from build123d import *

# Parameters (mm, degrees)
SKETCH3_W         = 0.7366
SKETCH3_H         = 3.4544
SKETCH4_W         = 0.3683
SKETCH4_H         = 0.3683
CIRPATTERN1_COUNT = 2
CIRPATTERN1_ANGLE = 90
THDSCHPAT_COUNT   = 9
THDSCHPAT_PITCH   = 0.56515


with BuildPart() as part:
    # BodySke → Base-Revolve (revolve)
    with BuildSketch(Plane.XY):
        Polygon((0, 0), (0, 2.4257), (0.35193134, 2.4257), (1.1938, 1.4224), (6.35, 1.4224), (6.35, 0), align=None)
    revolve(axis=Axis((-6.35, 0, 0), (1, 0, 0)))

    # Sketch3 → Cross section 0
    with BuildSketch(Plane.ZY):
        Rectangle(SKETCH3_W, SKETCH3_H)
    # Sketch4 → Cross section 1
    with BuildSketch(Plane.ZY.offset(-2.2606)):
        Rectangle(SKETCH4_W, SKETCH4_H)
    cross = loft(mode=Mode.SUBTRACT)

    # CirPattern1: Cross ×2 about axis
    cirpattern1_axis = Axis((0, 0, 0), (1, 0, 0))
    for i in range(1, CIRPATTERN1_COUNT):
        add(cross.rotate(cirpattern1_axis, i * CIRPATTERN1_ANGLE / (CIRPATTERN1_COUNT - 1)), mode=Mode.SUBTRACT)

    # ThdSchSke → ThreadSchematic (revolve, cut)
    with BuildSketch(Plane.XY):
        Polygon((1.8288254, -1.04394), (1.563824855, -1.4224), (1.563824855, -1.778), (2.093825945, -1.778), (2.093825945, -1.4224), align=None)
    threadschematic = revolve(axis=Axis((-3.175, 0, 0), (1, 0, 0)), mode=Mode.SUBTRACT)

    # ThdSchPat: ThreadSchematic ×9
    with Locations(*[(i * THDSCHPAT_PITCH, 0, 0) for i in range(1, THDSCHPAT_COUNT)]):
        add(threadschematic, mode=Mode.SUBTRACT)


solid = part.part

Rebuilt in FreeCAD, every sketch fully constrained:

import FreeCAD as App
import Part
import Sketcher
Q = App.Units.Quantity

doc = App.newDocument("Part")
body = doc.addObject("PartDesign::Body", "Body")

# Sketch on XY plane
sketch1 = body.newObject("Sketcher::SketchObject", "Sketch")
sketch1.AttachmentSupport = (doc.getObject("XY_Plane"), [""])
sketch1.MapMode = "FlatFace"
sketch1.addGeometry(Part.LineSegment(App.Vector(0, 2.4257, 0), App.Vector(0, 0, 0)), False)
sketch1.addGeometry(Part.LineSegment(App.Vector(0, 0, 0), App.Vector(6.35, 0, 0)), False)
sketch1.addGeometry(Part.LineSegment(App.Vector(6.35, 0, 0), App.Vector(6.35, 1.4224, 0)), False)
sketch1.addGeometry(Part.LineSegment(App.Vector(6.35, 1.4224, 0), App.Vector(1.1938, 1.4224, 0)), False)
sketch1.addGeometry(Part.LineSegment(App.Vector(1.1938, 1.4224, 0), App.Vector(0.351931, 2.4257, 0)), False)
sketch1.addGeometry(Part.LineSegment(App.Vector(0.351931, 2.4257, 0), App.Vector(0, 2.4257, 0)), False)
sketch1.addConstraint(Sketcher.Constraint("Coincident", 0, 2, 1, 1))
sketch1.addConstraint(Sketcher.Constraint("Coincident", 1, 2, 2, 1))
sketch1.addConstraint(Sketcher.Constraint("Coincident", 2, 2, 3, 1))
sketch1.addConstraint(Sketcher.Constraint("Coincident", 3, 2, 4, 1))
sketch1.addConstraint(Sketcher.Constraint("Coincident", 4, 2, 5, 1))
sketch1.addConstraint(Sketcher.Constraint("Coincident", 5, 2, 0, 1))
sketch1.addConstraint(Sketcher.Constraint("Vertical", 0))
sketch1.addConstraint(Sketcher.Constraint("Horizontal", 1))
sketch1.addConstraint(Sketcher.Constraint("Vertical", 2))
sketch1.addConstraint(Sketcher.Constraint("Horizontal", 3))
sketch1.addConstraint(Sketcher.Constraint("Horizontal", 5))
sketch1.addConstraint(Sketcher.Constraint("Coincident", 0, 2, -1, 1))
sketch1.addConstraint(Sketcher.Constraint("Angle", 4, Q("130 deg")))
sketch1.addConstraint(Sketcher.Constraint("DistanceX", 1, 1, 1, 2, Q("0.25 in")))
sketch1.addConstraint(Sketcher.Constraint("DistanceX", 3, 2, 3, 1, Q("0.203 in")))
sketch1.addConstraint(Sketcher.Constraint("DistanceY", 2, 1, 2, 2, Q("0.056 in")))
sketch1.addConstraint(Sketcher.Constraint("DistanceY", 0, 2, 0, 1, Q("0.0955 in")))
revolution = body.newObject("PartDesign::Revolution", "Revolution")
revolution.Profile = sketch1
revolution.ReferenceAxis = (sketch1, ["H_Axis"])
revolution.Angle = 360

# Sketch on YZ plane
sketch2 = body.newObject("Sketcher::SketchObject", "Sketch001")
sketch2.AttachmentSupport = (doc.getObject("YZ_Plane"), [""])
sketch2.MapMode = "FlatFace"
sketch2.addGeometry(Part.LineSegment(App.Vector(1.7272, -0.3683, 0), App.Vector(-1.7272, -0.3683, 0)), False)
sketch2.addGeometry(Part.LineSegment(App.Vector(-1.7272, -0.3683, 0), App.Vector(-1.7272, 0.3683, 0)), False)
sketch2.addGeometry(Part.LineSegment(App.Vector(-1.7272, 0.3683, 0), App.Vector(1.7272, 0.3683, 0)), False)
sketch2.addGeometry(Part.LineSegment(App.Vector(1.7272, 0.3683, 0), App.Vector(1.7272, -0.3683, 0)), False)
sketch2.addConstraint(Sketcher.Constraint("Coincident", 0, 2, 1, 1))
sketch2.addConstraint(Sketcher.Constraint("Coincident", 1, 2, 2, 1))
sketch2.addConstraint(Sketcher.Constraint("Coincident", 2, 2, 3, 1))
sketch2.addConstraint(Sketcher.Constraint("Coincident", 3, 2, 0, 1))
sketch2.addConstraint(Sketcher.Constraint("Horizontal", 0))
sketch2.addConstraint(Sketcher.Constraint("Vertical", 1))
sketch2.addConstraint(Sketcher.Constraint("Horizontal", 2))
sketch2.addConstraint(Sketcher.Constraint("Vertical", 3))
sketch2.addConstraint(Sketcher.Constraint("Symmetric", 0, 2, 2, 2, -1, 1))
sketch2.addConstraint(Sketcher.Constraint("DistanceX", 0, 2, 0, 1, Q("0.136 in")))
sketch2.addConstraint(Sketcher.Constraint("DistanceY", 1, 1, 1, 2, Q("0.029 in")))

# Sketch on YZ plane
sketch3 = body.newObject("Sketcher::SketchObject", "Sketch002")
sketch3.AttachmentSupport = (doc.getObject("YZ_Plane"), [""])
sketch3.MapMode = "FlatFace"
sketch3.AttachmentOffset = App.Placement(App.Vector(0, 0, 0.089 * 25.4), App.Rotation())
sketch3.addGeometry(Part.LineSegment(App.Vector(0.18415, -0.18415, 0), App.Vector(-0.18415, -0.18415, 0)), False)
sketch3.addGeometry(Part.LineSegment(App.Vector(-0.18415, -0.18415, 0), App.Vector(-0.18415, 0.18415, 0)), False)
sketch3.addGeometry(Part.LineSegment(App.Vector(-0.18415, 0.18415, 0), App.Vector(0.18415, 0.18415, 0)), False)
sketch3.addGeometry(Part.LineSegment(App.Vector(0.18415, 0.18415, 0), App.Vector(0.18415, -0.18415, 0)), False)
sketch3.addConstraint(Sketcher.Constraint("Coincident", 0, 2, 1, 1))
sketch3.addConstraint(Sketcher.Constraint("Coincident", 1, 2, 2, 1))
sketch3.addConstraint(Sketcher.Constraint("Coincident", 2, 2, 3, 1))
sketch3.addConstraint(Sketcher.Constraint("Coincident", 3, 2, 0, 1))
sketch3.addConstraint(Sketcher.Constraint("Horizontal", 0))
sketch3.addConstraint(Sketcher.Constraint("Vertical", 1))
sketch3.addConstraint(Sketcher.Constraint("Horizontal", 2))
sketch3.addConstraint(Sketcher.Constraint("Vertical", 3))
sketch3.addConstraint(Sketcher.Constraint("Symmetric", 0, 2, 2, 2, -1, 1))
sketch3.addConstraint(Sketcher.Constraint("Equal", 2, 1))
sketch3.addConstraint(Sketcher.Constraint("DistanceX", 0, 2, 0, 1, Q("0.0145 in")))

subtractiveloft = body.newObject("PartDesign::SubtractiveLoft", "SubtractiveLoft")
subtractiveloft.Profile = sketch2
subtractiveloft.Sections = [sketch3]
doc.recompute()

polarpattern = body.newObject("PartDesign::PolarPattern", "PolarPattern")
polarpattern.Originals = [subtractiveloft]
polarpattern.Axis = (doc.getObject("X_Axis"), [""])
polarpattern.Angle = 90
polarpattern.Occurrences = 2
body.Tip = polarpattern

# Sketch on XY plane
sketch4 = body.newObject("Sketcher::SketchObject", "Sketch003")
sketch4.AttachmentSupport = (doc.getObject("XY_Plane"), [""])
sketch4.MapMode = "FlatFace"
sketch4.addGeometry(Part.LineSegment(App.Vector(1.828825, -1.04394, 0), App.Vector(1.563825, -1.4224, 0)), False)
sketch4.addGeometry(Part.LineSegment(App.Vector(1.563825, -1.4224, 0), App.Vector(1.563825, -1.778, 0)), False)
sketch4.addGeometry(Part.LineSegment(App.Vector(1.563825, -1.778, 0), App.Vector(2.093826, -1.778, 0)), False)
sketch4.addGeometry(Part.LineSegment(App.Vector(2.093826, -1.778, 0), App.Vector(2.093826, -1.4224, 0)), False)
sketch4.addGeometry(Part.LineSegment(App.Vector(2.093826, -1.4224, 0), App.Vector(1.828825, -1.04394, 0)), False)
sketch4.addConstraint(Sketcher.Constraint("Coincident", 0, 2, 1, 1))
sketch4.addConstraint(Sketcher.Constraint("Coincident", 1, 2, 2, 1))
sketch4.addConstraint(Sketcher.Constraint("Coincident", 2, 2, 3, 1))
sketch4.addConstraint(Sketcher.Constraint("Coincident", 3, 2, 4, 1))
sketch4.addConstraint(Sketcher.Constraint("Coincident", 4, 2, 0, 1))
sketch4.addConstraint(Sketcher.Constraint("Vertical", 1))
sketch4.addConstraint(Sketcher.Constraint("Horizontal", 2))
sketch4.addConstraint(Sketcher.Constraint("Vertical", 3))
sketch4.addConstraint(Sketcher.Constraint("Horizontal", 0, 2, 3, 2))
sketch4.addConstraint(Sketcher.Constraint("Equal", 0, 4))
sketch4.addConstraint(Sketcher.Constraint("Angle", 0, Q("-125 deg")))
sketch4.addConstraint(Sketcher.Constraint("DistanceY", 1, 2, 1, 1, Q("0.014 in")))
sketch4.addConstraint(Sketcher.Constraint("DistanceY", 1, 2, -1, 1, Q("0.07 in")))
sketch4.addConstraint(Sketcher.Constraint("DistanceX", 2, 1, 2, 2, Q("0.530001 mm")))
sketch4.addConstraint(Sketcher.Constraint("DistanceX", -1, 1, 0, 2, Q("1.563825 mm")))
groove = body.newObject("PartDesign::Groove", "Groove")
groove.Profile = sketch4
groove.ReferenceAxis = (sketch4, ["H_Axis"])
groove.Angle = 360
doc.recompute()

linearpattern = body.newObject("PartDesign::LinearPattern", "LinearPattern")
linearpattern.Originals = [groove]
linearpattern.Direction = (doc.getObject("X_Axis"), [""])
linearpattern.Mode = "offset"
linearpattern.Offset = 0.56515
linearpattern.Occurrences = 9
body.Tip = linearpattern

doc.recompute()
